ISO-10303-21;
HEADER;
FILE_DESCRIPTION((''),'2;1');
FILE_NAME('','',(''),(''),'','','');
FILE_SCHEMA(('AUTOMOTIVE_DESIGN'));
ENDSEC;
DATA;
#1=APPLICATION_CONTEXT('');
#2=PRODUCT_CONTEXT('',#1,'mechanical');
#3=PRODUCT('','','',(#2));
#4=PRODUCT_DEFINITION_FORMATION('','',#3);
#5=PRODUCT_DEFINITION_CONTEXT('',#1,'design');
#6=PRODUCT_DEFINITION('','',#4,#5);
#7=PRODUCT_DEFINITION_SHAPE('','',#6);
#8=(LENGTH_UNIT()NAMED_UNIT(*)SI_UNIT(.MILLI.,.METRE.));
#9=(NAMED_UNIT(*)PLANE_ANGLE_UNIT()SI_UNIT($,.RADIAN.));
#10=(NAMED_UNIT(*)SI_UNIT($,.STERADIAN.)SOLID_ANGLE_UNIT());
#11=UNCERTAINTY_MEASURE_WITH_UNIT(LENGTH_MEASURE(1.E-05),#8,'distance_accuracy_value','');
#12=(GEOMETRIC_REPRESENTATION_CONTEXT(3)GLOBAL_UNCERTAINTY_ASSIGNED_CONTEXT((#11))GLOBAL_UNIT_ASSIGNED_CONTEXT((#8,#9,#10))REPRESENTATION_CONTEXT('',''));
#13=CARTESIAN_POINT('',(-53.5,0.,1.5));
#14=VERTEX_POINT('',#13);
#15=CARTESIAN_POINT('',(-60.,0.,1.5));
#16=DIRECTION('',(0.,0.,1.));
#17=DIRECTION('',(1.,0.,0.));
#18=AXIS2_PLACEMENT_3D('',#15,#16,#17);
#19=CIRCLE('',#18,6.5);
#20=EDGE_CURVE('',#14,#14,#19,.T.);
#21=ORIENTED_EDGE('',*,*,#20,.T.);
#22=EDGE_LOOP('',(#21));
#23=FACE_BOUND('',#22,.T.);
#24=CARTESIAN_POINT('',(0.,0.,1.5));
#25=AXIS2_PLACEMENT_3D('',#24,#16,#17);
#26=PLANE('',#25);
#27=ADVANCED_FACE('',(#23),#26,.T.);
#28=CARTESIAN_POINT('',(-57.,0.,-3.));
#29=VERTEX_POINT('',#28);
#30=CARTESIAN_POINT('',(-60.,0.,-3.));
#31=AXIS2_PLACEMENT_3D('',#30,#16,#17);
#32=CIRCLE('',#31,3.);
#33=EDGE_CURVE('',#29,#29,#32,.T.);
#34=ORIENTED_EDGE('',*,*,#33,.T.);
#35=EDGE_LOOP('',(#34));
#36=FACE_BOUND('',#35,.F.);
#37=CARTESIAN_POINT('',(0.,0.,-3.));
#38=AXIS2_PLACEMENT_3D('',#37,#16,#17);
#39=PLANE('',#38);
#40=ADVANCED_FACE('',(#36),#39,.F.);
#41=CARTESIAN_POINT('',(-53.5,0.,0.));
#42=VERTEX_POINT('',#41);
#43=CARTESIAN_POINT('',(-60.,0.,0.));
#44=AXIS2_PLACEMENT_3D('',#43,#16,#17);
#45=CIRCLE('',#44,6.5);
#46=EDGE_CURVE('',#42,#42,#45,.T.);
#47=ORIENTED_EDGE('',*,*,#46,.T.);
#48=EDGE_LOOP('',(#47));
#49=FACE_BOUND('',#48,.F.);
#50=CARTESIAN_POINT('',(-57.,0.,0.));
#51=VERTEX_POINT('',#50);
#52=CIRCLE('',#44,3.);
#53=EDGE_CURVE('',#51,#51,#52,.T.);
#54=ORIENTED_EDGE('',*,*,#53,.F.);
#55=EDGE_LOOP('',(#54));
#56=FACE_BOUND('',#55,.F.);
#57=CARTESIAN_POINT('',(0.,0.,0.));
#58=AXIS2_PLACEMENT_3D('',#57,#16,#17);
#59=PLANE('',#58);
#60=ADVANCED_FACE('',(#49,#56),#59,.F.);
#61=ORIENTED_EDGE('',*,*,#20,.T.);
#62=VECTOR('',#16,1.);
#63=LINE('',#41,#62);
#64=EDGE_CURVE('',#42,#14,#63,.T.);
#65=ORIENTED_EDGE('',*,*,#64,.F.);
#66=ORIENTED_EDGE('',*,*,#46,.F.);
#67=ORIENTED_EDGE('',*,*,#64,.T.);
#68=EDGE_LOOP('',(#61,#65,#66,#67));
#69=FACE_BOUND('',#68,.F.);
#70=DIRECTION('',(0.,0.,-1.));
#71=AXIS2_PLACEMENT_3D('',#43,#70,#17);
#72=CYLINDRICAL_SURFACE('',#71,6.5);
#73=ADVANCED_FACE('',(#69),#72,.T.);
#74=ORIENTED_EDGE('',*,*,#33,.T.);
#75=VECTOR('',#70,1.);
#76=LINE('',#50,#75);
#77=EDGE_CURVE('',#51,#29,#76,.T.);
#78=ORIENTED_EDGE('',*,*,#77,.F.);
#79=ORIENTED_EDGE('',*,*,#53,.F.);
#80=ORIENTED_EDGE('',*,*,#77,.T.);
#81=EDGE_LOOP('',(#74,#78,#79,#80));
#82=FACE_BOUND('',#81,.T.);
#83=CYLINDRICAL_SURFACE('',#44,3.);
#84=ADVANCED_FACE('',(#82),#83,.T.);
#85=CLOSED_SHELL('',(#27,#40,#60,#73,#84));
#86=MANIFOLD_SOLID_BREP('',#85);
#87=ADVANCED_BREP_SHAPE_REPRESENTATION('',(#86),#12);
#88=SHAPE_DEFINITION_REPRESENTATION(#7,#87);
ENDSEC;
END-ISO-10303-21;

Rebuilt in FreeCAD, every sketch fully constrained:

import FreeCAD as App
import Part
import Sketcher
Q = App.Units.Quantity

doc = App.newDocument("Part")
body = doc.addObject("PartDesign::Body", "Body")

# Sketch on XY plane
sketch1 = body.newObject("Sketcher::SketchObject", "Sketch")
sketch1.AttachmentSupport = (doc.getObject("XY_Plane"), [""])
sketch1.MapMode = "FlatFace"
sketch1.addGeometry(Part.Circle(App.Vector(-60, 0, 0), App.Vector(0, 0, 1), 6.5), False)
sketch1.addConstraint(Sketcher.Constraint("PointOnObject", 0, 3, -1))
sketch1.addConstraint(Sketcher.Constraint("Diameter", 0, Q("13 mm")))
sketch1.addConstraint(Sketcher.Constraint("DistanceX", 0, 3, -1, 1, Q("60 mm")))
pad1 = body.newObject("PartDesign::Pad", "Pad")
pad1.Profile = sketch1
pad1.Length = 1.5

# Sketch on XY plane
sketch2 = body.newObject("Sketcher::SketchObject", "Sketch001")
sketch2.AttachmentSupport = (doc.getObject("XY_Plane"), [""])
sketch2.MapMode = "FlatFace"
sketch2.addGeometry(Part.Circle(App.Vector(-60, 0, 0), App.Vector(0, 0, 1), 3), False)
sketch2.addConstraint(Sketcher.Constraint("PointOnObject", 0, 3, -1))
sketch2.addConstraint(Sketcher.Constraint("Diameter", 0, Q("6 mm")))
sketch2.addConstraint(Sketcher.Constraint("DistanceX", 0, 3, -1, 1, Q("60 mm")))
pad2 = body.newObject("PartDesign::Pad", "Pad001")
pad2.Profile = sketch2
pad2.Length = 3
pad2.Reversed = True

doc.recompute()
